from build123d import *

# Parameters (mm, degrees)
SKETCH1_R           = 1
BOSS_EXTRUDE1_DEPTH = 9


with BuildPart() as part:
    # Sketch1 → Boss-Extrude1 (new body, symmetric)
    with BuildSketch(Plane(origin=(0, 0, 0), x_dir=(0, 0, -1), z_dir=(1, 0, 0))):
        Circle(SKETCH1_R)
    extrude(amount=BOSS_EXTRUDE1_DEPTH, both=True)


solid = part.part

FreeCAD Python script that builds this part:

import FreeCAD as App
import Part
import Sketcher

V = App.Vector
Q = App.Units.Quantity

doc = App.newDocument("Part")
params = doc.addObject("Spreadsheet::Sheet", "Params")
for row, (alias, value) in enumerate([
    ("sketch1_diameter", "2 mm"),
    ("pad1_length", "18 mm"),
], start=1):
    params.set(f"A{row}", alias)
    params.set(f"B{row}", "=" + value)
    params.setAlias(f"B{row}", alias)

body = doc.addObject("PartDesign::Body", "Body")

sketch1 = body.newObject("Sketcher::SketchObject", "Sketch")
sketch1.AttachmentSupport = (doc.getObject("YZ_Plane"), [""])
sketch1.MapMode = "FlatFace"
sketch1.addGeometry(Part.Circle(V(0, 0, 0), V(0, 0, 1), 1), False)
sketch1.addConstraint([
    Sketcher.Constraint("Coincident", 0, 3, -1, 1),
    Sketcher.Constraint("Diameter", 0, Q("2 mm")),
])
sketch1.setExpression("Constraints[1]", "Params.sketch1_diameter")
pad1 = body.newObject("PartDesign::Pad", "Pad")
pad1.Profile = sketch1
pad1.setExpression("Length", "Params.pad1_length")
pad1.Midplane = True

doc.recompute()
